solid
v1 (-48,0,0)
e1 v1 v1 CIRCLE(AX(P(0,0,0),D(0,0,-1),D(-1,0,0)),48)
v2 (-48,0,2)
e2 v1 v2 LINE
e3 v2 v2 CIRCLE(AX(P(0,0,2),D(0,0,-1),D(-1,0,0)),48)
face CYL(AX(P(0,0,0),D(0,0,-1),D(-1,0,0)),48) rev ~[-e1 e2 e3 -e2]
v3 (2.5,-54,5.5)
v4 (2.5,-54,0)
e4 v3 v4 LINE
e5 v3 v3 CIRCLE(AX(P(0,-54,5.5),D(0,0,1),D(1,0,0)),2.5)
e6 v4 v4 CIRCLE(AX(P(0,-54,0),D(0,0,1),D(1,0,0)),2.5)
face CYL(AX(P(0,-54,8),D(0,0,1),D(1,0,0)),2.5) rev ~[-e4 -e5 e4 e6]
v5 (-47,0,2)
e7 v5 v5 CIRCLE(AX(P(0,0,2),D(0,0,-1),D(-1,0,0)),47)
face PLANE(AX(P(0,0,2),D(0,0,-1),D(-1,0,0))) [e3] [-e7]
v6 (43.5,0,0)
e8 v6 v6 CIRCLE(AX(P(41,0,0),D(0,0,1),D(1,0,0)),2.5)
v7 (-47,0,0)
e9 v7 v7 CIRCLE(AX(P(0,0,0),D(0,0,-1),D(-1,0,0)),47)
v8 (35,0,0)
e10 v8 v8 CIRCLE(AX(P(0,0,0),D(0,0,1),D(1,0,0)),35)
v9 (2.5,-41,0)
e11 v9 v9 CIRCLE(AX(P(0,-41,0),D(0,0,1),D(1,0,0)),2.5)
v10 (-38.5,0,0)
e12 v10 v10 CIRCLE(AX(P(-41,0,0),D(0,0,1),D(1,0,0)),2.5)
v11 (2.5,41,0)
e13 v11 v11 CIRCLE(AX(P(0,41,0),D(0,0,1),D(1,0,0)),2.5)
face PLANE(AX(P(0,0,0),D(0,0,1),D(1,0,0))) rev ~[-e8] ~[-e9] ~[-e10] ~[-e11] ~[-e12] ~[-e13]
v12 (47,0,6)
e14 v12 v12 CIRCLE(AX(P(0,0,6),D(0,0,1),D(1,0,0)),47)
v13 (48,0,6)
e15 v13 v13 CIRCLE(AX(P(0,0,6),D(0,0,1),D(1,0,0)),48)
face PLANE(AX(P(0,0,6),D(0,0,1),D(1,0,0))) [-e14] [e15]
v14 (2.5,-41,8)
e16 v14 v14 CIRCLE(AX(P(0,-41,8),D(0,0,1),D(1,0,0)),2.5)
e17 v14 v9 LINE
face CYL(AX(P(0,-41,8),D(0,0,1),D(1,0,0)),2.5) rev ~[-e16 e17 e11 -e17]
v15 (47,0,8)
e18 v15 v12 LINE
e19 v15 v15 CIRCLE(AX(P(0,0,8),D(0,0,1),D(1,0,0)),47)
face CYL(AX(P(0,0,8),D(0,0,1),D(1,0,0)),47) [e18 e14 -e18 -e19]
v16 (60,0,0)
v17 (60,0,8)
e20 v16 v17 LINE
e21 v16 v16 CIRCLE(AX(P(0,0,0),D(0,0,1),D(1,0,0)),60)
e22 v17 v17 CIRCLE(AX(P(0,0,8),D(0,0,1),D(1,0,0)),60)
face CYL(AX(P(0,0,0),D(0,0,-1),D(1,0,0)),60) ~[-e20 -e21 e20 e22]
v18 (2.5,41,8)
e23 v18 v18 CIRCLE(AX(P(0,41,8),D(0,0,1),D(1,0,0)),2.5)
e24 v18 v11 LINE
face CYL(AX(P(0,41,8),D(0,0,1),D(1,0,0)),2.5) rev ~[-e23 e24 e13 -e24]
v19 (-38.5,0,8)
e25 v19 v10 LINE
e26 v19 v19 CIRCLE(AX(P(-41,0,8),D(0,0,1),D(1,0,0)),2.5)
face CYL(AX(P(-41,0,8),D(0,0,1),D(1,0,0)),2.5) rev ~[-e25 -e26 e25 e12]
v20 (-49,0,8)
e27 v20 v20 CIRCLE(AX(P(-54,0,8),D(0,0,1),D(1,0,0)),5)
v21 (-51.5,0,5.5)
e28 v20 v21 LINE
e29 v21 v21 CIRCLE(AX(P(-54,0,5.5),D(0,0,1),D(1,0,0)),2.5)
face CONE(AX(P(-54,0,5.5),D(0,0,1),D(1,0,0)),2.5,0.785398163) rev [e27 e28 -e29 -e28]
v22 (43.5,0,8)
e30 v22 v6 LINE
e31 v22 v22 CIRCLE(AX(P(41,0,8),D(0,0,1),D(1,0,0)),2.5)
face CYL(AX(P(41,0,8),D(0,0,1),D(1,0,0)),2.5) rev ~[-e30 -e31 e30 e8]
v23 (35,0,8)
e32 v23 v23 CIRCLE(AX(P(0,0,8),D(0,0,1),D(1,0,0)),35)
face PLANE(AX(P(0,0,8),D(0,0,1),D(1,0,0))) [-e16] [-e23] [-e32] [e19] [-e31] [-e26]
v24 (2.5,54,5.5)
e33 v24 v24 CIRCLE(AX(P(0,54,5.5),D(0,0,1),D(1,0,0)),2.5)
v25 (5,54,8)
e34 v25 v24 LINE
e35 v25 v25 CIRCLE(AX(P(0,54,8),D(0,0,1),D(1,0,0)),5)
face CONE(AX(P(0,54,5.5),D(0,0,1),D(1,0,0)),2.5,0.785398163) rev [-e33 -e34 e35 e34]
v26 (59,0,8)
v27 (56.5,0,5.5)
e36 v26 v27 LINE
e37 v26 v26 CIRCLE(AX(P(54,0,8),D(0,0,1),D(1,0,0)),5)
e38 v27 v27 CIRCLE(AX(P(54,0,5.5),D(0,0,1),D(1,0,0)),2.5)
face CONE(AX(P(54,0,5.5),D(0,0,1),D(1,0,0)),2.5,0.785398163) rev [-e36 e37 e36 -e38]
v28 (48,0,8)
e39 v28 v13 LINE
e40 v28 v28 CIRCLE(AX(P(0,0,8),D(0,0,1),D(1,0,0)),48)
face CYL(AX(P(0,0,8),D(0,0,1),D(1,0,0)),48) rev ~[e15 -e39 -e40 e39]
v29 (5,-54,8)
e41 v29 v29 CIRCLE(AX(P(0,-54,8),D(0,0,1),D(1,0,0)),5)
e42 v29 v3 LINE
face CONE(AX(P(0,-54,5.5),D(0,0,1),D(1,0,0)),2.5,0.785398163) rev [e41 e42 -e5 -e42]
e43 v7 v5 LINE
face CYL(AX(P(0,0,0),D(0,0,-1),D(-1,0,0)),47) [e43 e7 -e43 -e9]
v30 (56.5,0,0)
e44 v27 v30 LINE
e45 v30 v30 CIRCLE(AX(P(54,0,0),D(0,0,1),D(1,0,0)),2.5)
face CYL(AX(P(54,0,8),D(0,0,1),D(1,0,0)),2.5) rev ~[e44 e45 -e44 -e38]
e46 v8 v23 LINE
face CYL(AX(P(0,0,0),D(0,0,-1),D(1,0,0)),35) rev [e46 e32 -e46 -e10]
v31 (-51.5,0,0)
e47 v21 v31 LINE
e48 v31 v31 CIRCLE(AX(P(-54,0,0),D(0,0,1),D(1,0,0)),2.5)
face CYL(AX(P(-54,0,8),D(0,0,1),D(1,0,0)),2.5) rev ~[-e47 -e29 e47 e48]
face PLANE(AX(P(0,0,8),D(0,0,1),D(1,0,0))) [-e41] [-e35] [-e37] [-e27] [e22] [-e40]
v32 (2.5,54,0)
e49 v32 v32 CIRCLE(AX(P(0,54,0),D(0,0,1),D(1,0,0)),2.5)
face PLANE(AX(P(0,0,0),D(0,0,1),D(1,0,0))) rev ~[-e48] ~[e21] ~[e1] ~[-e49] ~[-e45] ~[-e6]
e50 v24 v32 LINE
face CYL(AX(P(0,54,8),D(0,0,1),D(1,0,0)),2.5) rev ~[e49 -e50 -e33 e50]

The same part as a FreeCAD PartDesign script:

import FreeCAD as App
import Part
import Sketcher

V = App.Vector
Q = App.Units.Quantity


def edges_at(feature, points):
    """Names of the edges that pass closest to the given points."""
    edges = feature.Shape.Edges
    near = lambda p: min(range(len(edges)), key=lambda i: edges[i].distToShape(Part.Vertex(*p))[0])
    return sorted({f"Edge{near(p) + 1}" for p in points})

doc = App.newDocument("Part")
params = doc.addObject("Spreadsheet::Sheet", "Params")
for row, (alias, value) in enumerate([
    ("sketch1_diameter", "120 mm"),
    ("sketch1_diameter2", "70 mm"),
    ("pad1_length", "8 mm"),
    ("sketch2_diameter", "96 mm"),
    ("sketch2_diameter2", "94 mm"),
    ("pocket1_length", "2 mm"),
    ("sketch3_diameter", "96 mm"),
    ("sketch3_diameter2", "94 mm"),
    ("pocket2_length", "2 mm"),
    ("sketch4_diameter", "5 mm"),
    ("chamfer_size", "2.5 mm"),
], start=1):
    params.set(f"A{row}", alias)
    params.set(f"B{row}", "=" + value)
    params.setAlias(f"B{row}", alias)

body = doc.addObject("PartDesign::Body", "Body")

# Sketch on XY plane
sketch1 = body.newObject("Sketcher::SketchObject", "Sketch")
sketch1.AttachmentSupport = (doc.getObject("XY_Plane"), [""])
sketch1.MapMode = "FlatFace"
sketch1.addGeometry([
    Part.Circle(V(0, 0, 0), V(0, 0, 1), 60),
    Part.Circle(V(0, 0, 0), V(0, 0, 1), 35),
], False)
sketch1.addConstraint([
    Sketcher.Constraint("Coincident", 0, 3, -1, 1),
    Sketcher.Constraint("Coincident", 1, 3, -1, 1),
    Sketcher.Constraint("Diameter", 0, Q("120 mm")),
    Sketcher.Constraint("Diameter", 1, Q("70 mm")),
])
sketch1.setExpression("Constraints[2]", "Params.sketch1_diameter")
sketch1.setExpression("Constraints[3]", "Params.sketch1_diameter2")
pad1 = body.newObject("PartDesign::Pad", "Pad")
pad1.Profile = sketch1
pad1.setExpression("Length", "Params.pad1_length")

# Sketch on XY plane
sketch2 = body.newObject("Sketcher::SketchObject", "Sketch001")
sketch2.AttachmentSupport = (doc.getObject("XY_Plane"), [""])
sketch2.MapMode = "FlatFace"
sketch2.AttachmentOffset = App.Placement(V(0, 0, 8), App.Rotation())
sketch2.addGeometry([
    Part.Circle(V(0, 0, 0), V(0, 0, 1), 48),
    Part.Circle(V(0, 0, 0), V(0, 0, 1), 47),
], False)
sketch2.addConstraint([
    Sketcher.Constraint("Coincident", 0, 3, -1, 1),
    Sketcher.Constraint("Coincident", 1, 3, -1, 1),
    Sketcher.Constraint("Diameter", 0, Q("96 mm")),
    Sketcher.Constraint("Diameter", 1, Q("94 mm")),
])
sketch2.setExpression("Constraints[2]", "Params.sketch2_diameter")
sketch2.setExpression("Constraints[3]", "Params.sketch2_diameter2")
pocket1 = body.newObject("PartDesign::Pocket", "Pocket")
pocket1.Profile = sketch2
pocket1.setExpression("Length", "Params.pocket1_length")

# Sketch on XY plane
sketch3 = body.newObject("Sketcher::SketchObject", "Sketch002")
sketch3.AttachmentSupport = (doc.getObject("XY_Plane"), [""])
sketch3.MapMode = "FlatFace"
sketch3.addGeometry([
    Part.Circle(V(0, 0, 0), V(0, 0, 1), 48),
    Part.Circle(V(0, 0, 0), V(0, 0, 1), 47),
], False)
sketch3.addConstraint([
    Sketcher.Constraint("Coincident", 0, 3, -1, 1),
    Sketcher.Constraint("Coincident", 1, 3, -1, 1),
    Sketcher.Constraint("Diameter", 0, Q("96 mm")),
    Sketcher.Constraint("Diameter", 1, Q("94 mm")),
])
sketch3.setExpression("Constraints[2]", "Params.sketch3_diameter")
sketch3.setExpression("Constraints[3]", "Params.sketch3_diameter2")
pocket2 = body.newObject("PartDesign::Pocket", "Pocket001")
pocket2.Profile = sketch3
pocket2.setExpression("Length", "Params.pocket2_length")
pocket2.Reversed = True

# Sketch on XY plane
sketch4 = body.newObject("Sketcher::SketchObject", "Sketch003")
sketch4.AttachmentSupport = (doc.getObject("XY_Plane"), [""])
sketch4.MapMode = "FlatFace"
sketch4.AttachmentOffset = App.Placement(V(0, 0, 8), App.Rotation())
sketch4.addGeometry([
    Part.Circle(V(0, -41, 0), V(0, 0, 1), 2.5),  # 0
    Part.Circle(V(41, 0, 0), V(0, 0, 1), 2.5),  # 1
    Part.Circle(V(0, 41, 0), V(0, 0, 1), 2.5),  # 2
    Part.Circle(V(-41, 0, 0), V(0, 0, 1), 2.5),  # 3
    Part.Circle(V(0, -54, 0), V(0, 0, 1), 2.5),  # 4
    Part.Circle(V(54, 0, 0), V(0, 0, 1), 2.5),  # 5
    Part.Circle(V(0, 54, 0), V(0, 0, 1), 2.5),  # 6
    Part.Circle(V(-54, 0, 0), V(0, 0, 1), 2.5),  # 7
], False)
sketch4.addConstraint([
    Sketcher.Constraint("Equal", 0, 1),
    Sketcher.Constraint("Equal", 1, 2),
    Sketcher.Constraint("Equal", 2, 3),
    Sketcher.Constraint("Equal", 3, 4),
    Sketcher.Constraint("Equal", 4, 5),
    Sketcher.Constraint("Equal", 5, 6),
    Sketcher.Constraint("Equal", 6, 7),
    Sketcher.Constraint("Symmetric", 0, 3, 2, 3, -1, 1),
    Sketcher.Constraint("Symmetric", 1, 3, 3, 3, -1, 1),
    Sketcher.Constraint("Symmetric", 4, 3, 6, 3, -1, 1),
    Sketcher.Constraint("Symmetric", 5, 3, 7, 3, -1, 1),
    Sketcher.Constraint("PointOnObject", 0, 3, -2),
    Sketcher.Constraint("PointOnObject", 1, 3, -1),
    Sketcher.Constraint("PointOnObject", 4, 3, -2),
    Sketcher.Constraint("PointOnObject", 5, 3, -1),
    Sketcher.Constraint("Diameter", 0, Q("5 mm")),
    Sketcher.Constraint("DistanceY", 0, 3, 2, 3, Q("82 mm")),
    Sketcher.Constraint("DistanceX", 3, 3, 1, 3, Q("82 mm")),
    Sketcher.Constraint("DistanceY", 4, 3, -1, 1, Q("54 mm")),
    Sketcher.Constraint("DistanceX", -1, 1, 5, 3, Q("54 mm")),
])
sketch4.setExpression("Constraints[15]", "Params.sketch4_diameter")
pocket3 = body.newObject("PartDesign::Pocket", "Pocket002")
pocket3.Profile = sketch4
pocket3.Type = "ThroughAll"
doc.recompute()

chamfer = body.newObject("PartDesign::Chamfer", "Chamfer")
chamfer.Base = (pocket3, edges_at(pocket3, [
    (51.5, 0, 8),
    (-2.5, -54, 8),
    (-56.5, 0, 8),
    (-2.5, 54, 8),
]))
chamfer.setExpression("Size", "Params.chamfer_size")

doc.recompute()
